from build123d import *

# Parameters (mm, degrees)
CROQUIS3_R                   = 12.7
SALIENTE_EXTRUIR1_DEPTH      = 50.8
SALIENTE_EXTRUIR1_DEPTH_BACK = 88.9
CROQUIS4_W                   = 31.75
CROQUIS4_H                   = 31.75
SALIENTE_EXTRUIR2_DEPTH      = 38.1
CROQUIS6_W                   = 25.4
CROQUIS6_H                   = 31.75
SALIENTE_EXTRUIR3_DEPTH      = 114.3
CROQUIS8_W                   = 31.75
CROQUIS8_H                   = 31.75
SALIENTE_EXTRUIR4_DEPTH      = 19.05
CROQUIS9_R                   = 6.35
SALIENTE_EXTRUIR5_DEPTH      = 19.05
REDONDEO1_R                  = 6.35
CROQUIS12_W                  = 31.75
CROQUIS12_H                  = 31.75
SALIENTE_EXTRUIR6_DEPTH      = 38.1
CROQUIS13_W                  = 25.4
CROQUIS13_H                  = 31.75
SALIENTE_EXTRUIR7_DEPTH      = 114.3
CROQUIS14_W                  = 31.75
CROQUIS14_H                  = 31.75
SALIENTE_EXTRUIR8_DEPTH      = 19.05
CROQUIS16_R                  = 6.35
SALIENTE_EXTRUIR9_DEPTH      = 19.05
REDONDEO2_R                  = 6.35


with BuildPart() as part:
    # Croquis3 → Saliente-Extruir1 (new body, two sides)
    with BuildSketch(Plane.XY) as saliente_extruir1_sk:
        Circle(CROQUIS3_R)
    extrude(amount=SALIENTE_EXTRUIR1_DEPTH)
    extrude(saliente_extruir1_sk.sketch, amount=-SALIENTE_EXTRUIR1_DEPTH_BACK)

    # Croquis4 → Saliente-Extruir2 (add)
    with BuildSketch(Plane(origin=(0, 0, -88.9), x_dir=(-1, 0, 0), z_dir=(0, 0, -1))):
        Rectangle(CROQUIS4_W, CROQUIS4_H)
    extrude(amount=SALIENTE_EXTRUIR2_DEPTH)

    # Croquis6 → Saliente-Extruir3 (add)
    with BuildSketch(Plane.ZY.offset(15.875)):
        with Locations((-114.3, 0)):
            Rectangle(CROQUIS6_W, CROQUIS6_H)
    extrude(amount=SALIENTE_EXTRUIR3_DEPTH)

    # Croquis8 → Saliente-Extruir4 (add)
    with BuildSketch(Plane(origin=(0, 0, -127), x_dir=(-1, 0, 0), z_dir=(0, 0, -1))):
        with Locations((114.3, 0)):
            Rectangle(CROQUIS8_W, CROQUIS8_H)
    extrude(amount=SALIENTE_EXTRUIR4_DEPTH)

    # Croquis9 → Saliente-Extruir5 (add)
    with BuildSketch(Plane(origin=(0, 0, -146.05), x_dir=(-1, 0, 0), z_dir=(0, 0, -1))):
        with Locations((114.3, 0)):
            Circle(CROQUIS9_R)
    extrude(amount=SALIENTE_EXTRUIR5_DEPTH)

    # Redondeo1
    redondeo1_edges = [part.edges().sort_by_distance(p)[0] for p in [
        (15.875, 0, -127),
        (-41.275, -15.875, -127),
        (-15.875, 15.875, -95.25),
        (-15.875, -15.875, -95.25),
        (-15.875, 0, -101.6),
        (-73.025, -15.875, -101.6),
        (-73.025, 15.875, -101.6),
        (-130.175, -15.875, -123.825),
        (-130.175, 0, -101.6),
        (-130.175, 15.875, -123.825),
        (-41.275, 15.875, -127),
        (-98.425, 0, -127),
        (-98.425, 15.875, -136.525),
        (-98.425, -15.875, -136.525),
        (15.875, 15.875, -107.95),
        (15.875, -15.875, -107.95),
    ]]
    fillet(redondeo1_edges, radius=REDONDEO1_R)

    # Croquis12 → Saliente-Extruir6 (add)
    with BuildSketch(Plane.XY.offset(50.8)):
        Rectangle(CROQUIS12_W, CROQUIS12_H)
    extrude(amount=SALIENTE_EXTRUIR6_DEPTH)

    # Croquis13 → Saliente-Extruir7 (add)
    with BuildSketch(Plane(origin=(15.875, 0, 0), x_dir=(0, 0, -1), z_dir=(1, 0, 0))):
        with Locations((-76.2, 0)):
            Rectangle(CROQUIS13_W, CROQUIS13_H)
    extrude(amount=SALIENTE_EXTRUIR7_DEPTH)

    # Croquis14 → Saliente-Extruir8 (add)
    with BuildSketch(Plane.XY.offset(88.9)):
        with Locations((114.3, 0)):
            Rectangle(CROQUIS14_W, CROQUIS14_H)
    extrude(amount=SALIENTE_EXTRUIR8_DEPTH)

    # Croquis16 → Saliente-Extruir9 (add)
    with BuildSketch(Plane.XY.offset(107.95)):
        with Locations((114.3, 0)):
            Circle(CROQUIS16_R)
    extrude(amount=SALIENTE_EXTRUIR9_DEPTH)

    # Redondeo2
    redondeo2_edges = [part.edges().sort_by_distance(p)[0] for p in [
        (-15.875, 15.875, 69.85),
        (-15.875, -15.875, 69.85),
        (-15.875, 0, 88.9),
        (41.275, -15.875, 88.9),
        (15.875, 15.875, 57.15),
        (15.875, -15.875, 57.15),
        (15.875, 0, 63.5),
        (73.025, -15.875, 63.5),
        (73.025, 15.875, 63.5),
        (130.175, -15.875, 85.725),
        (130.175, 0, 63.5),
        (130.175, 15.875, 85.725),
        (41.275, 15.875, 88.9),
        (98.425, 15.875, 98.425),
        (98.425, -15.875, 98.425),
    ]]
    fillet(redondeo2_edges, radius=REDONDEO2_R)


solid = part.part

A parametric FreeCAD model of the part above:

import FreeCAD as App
import Part
import Sketcher
Q = App.Units.Quantity


def edges_at(feature, points):
    """Names of the edges that pass closest to the given points."""
    edges = feature.Shape.Edges
    near = lambda p: min(range(len(edges)), key=lambda i: edges[i].distToShape(Part.Vertex(*p))[0])
    return sorted({f"Edge{near(p) + 1}" for p in points})

doc = App.newDocument("Part")
params = doc.addObject("Spreadsheet::Sheet", "Params")
for row, (alias, value) in enumerate([
    ("sketch1_diameter", "1 in"),
    ("pad1_length", "2 in"),
    ("pad1_length2", "3.5 in"),
    ("sketch2_width", "1.25 in"),
    ("pad2_length", "1.5 in"),
    ("sketch3_height", "1 in"),
    ("sketch3_width", "1.25 in"),
    ("pad3_length", "4.5 in"),
    ("sketch4_width", "1.25 in"),
    ("pad4_length", "0.75 in"),
    ("sketch5_diameter", "0.5 in"),
    ("pad5_length", "0.75 in"),
    ("fillet_radius", "0.25 in"),
    ("sketch6_width", "1.25 in"),
    ("pad6_length", "1.5 in"),
    ("sketch7_height", "1 in"),
    ("sketch7_width", "1.25 in"),
    ("pad7_length", "4.5 in"),
    ("sketch8_width", "1.25 in"),
    ("pad8_length", "0.75 in"),
    ("sketch9_diameter", "0.5 in"),
    ("pad9_length", "0.75 in"),
    ("fillet2_radius", "0.25 in"),
], start=1):
    params.set(f"A{row}", alias)
    params.set(f"B{row}", "=" + value)
    params.setAlias(f"B{row}", alias)

body = doc.addObject("PartDesign::Body", "Body")

# Sketch on XY plane
sketch1 = body.newObject("Sketcher::SketchObject", "Sketch")
sketch1.AttachmentSupport = (doc.getObject("XY_Plane"), [""])
sketch1.MapMode = "FlatFace"
sketch1.addGeometry(Part.Circle(App.Vector(0, 0, 0), App.Vector(0, 0, 1), 12.7), False)
sketch1.addConstraint(Sketcher.Constraint("Coincident", 0, 3, -1, 1))
sketch1.addConstraint(Sketcher.Constraint("Diameter", 0, Q("1 in")))
sketch1.setExpression("Constraints[1]", "Params.sketch1_diameter")
pad1 = body.newObject("PartDesign::Pad", "Pad")
pad1.Profile = sketch1
pad1.Type = "TwoLengths"
pad1.setExpression("Length", "Params.pad1_length")
pad1.setExpression("Length2", "Params.pad1_length2")

# Sketch on XY plane
sketch2 = body.newObject("Sketcher::SketchObject", "Sketch001")
sketch2.AttachmentSupport = (doc.getObject("XY_Plane"), [""])
sketch2.MapMode = "FlatFace"
sketch2.AttachmentOffset = App.Placement(App.Vector(0, 0, -3.5 * 25.4), App.Rotation())
sketch2.addGeometry(Part.LineSegment(App.Vector(15.875, 15.875, 0), App.Vector(15.875, -15.875, 0)), False)
sketch2.addGeometry(Part.LineSegment(App.Vector(15.875, -15.875, 0), App.Vector(-15.875, -15.875, 0)), False)
sketch2.addGeometry(Part.LineSegment(App.Vector(-15.875, -15.875, 0), App.Vector(-15.875, 15.875, 0)), False)
sketch2.addGeometry(Part.LineSegment(App.Vector(-15.875, 15.875, 0), App.Vector(15.875, 15.875, 0)), False)
sketch2.addConstraint(Sketcher.Constraint("Coincident", 0, 2, 1, 1))
sketch2.addConstraint(Sketcher.Constraint("Coincident", 1, 2, 2, 1))
sketch2.addConstraint(Sketcher.Constraint("Coincident", 2, 2, 3, 1))
sketch2.addConstraint(Sketcher.Constraint("Coincident", 3, 2, 0, 1))
sketch2.addConstraint(Sketcher.Constraint("Vertical", 0))
sketch2.addConstraint(Sketcher.Constraint("Horizontal", 1))
sketch2.addConstraint(Sketcher.Constraint("Vertical", 2))
sketch2.addConstraint(Sketcher.Constraint("Horizontal", 3))
sketch2.addConstraint(Sketcher.Constraint("Symmetric", 0, 2, 2, 2, -1, 1))
sketch2.addConstraint(Sketcher.Constraint("Equal", 3, 0))
sketch2.addConstraint(Sketcher.Constraint("DistanceX", 1, 2, 1, 1, Q("1.25 in")))
sketch2.setExpression("Constraints[10]", "Params.sketch2_width")
pad2 = body.newObject("PartDesign::Pad", "Pad001")
pad2.Profile = sketch2
pad2.setExpression("Length", "Params.pad2_length")
pad2.Reversed = True

# Sketch on YZ plane
sketch3 = body.newObject("Sketcher::SketchObject", "Sketch002")
sketch3.AttachmentSupport = (doc.getObject("YZ_Plane"), [""])
sketch3.MapMode = "FlatFace"
sketch3.AttachmentOffset = App.Placement(App.Vector(0, 0, -0.625 * 25.4), App.Rotation())
sketch3.addGeometry(Part.LineSegment(App.Vector(15.875, -127, 0), App.Vector(-15.875, -127, 0)), False)
sketch3.addGeometry(Part.LineSegment(App.Vector(-15.875, -127, 0), App.Vector(-15.875, -101.6, 0)), False)
sketch3.addGeometry(Part.LineSegment(App.Vector(-15.875, -101.6, 0), App.Vector(15.875, -101.6, 0)), False)
sketch3.addGeometry(Part.LineSegment(App.Vector(15.875, -101.6, 0), App.Vector(15.875, -127, 0)), False)
sketch3.addConstraint(Sketcher.Constraint("Coincident", 0, 2, 1, 1))
sketch3.addConstraint(Sketcher.Constraint("Coincident", 1, 2, 2, 1))
sketch3.addConstraint(Sketcher.Constraint("Coincident", 2, 2, 3, 1))
sketch3.addConstraint(Sketcher.Constraint("Coincident", 3, 2, 0, 1))
sketch3.addConstraint(Sketcher.Constraint("Horizontal", 0))
sketch3.addConstraint(Sketcher.Constraint("Vertical", 1))
sketch3.addConstraint(Sketcher.Constraint("Horizontal", 2))
sketch3.addConstraint(Sketcher.Constraint("Vertical", 3))
sketch3.addConstraint(Sketcher.Constraint("DistanceY", 1, 1, 1, 2, Q("1 in")))
sketch3.addConstraint(Sketcher.Constraint("DistanceY", 0, 2, -1, 1, Q("5 in")))
sketch3.addConstraint(Sketcher.Constraint("DistanceX", 0, 2, 0, 1, Q("1.25 in")))
sketch3.addConstraint(Sketcher.Constraint("DistanceX", 0, 2, -1, 1, Q("0.625 in")))
sketch3.setExpression("Constraints[8]", "Params.sketch3_height")
sketch3.setExpression("Constraints[10]", "Params.sketch3_width")
pad3 = body.newObject("PartDesign::Pad", "Pad002")
pad3.Profile = sketch3
pad3.setExpression("Length", "Params.pad3_length")
pad3.Reversed = True

# Sketch on XY plane
sketch4 = body.newObject("Sketcher::SketchObject", "Sketch003")
sketch4.AttachmentSupport = (doc.getObject("XY_Plane"), [""])
sketch4.MapMode = "FlatFace"
sketch4.AttachmentOffset = App.Placement(App.Vector(0, 0, -5 * 25.4), App.Rotation())
sketch4.addGeometry(Part.LineSegment(App.Vector(-98.425, 15.875, 0), App.Vector(-98.425, -15.875, 0)), False)
sketch4.addGeometry(Part.LineSegment(App.Vector(-98.425, -15.875, 0), App.Vector(-130.175, -15.875, 0)), False)
sketch4.addGeometry(Part.LineSegment(App.Vector(-130.175, -15.875, 0), App.Vector(-130.175, 15.875, 0)), False)
sketch4.addGeometry(Part.LineSegment(App.Vector(-130.175, 15.875, 0), App.Vector(-98.425, 15.875, 0)), False)
sketch4.addConstraint(Sketcher.Constraint("Coincident", 0, 2, 1, 1))
sketch4.addConstraint(Sketcher.Constraint("Coincident", 1, 2, 2, 1))
sketch4.addConstraint(Sketcher.Constraint("Coincident", 2, 2, 3, 1))
sketch4.addConstraint(Sketcher.Constraint("Coincident", 3, 2, 0, 1))
sketch4.addConstraint(Sketcher.Constraint("Vertical", 0))
sketch4.addConstraint(Sketcher.Constraint("Horizontal", 1))
sketch4.addConstraint(Sketcher.Constraint("Vertical", 2))
sketch4.addConstraint(Sketcher.Constraint("Horizontal", 3))
sketch4.addConstraint(Sketcher.Constraint("Equal", 3, 0))
sketch4.addConstraint(Sketcher.Constraint("DistanceX", 1, 2, 1, 1, Q("1.25 in")))
sketch4.addConstraint(Sketcher.Constraint("DistanceX", 0, 2, -1, 1, Q("3.875 in")))
sketch4.addConstraint(Sketcher.Constraint("DistanceY", 0, 2, -1, 1, Q("0.625 in")))
sketch4.setExpression("Constraints[9]", "Params.sketch4_width")
pad4 = body.newObject("PartDesign::Pad", "Pad003")
pad4.Profile = sketch4
pad4.setExpression("Length", "Params.pad4_length")
pad4.Reversed = True

# Sketch on XY plane
sketch5 = body.newObject("Sketcher::SketchObject", "Sketch004")
sketch5.AttachmentSupport = (doc.getObject("XY_Plane"), [""])
sketch5.MapMode = "FlatFace"
sketch5.AttachmentOffset = App.Placement(App.Vector(0, 0, -5.75 * 25.4), App.Rotation())
sketch5.addGeometry(Part.Circle(App.Vector(-114.3, 0, 0), App.Vector(0, 0, 1), 6.35), False)
sketch5.addConstraint(Sketcher.Constraint("PointOnObject", 0, 3, -1))
sketch5.addConstraint(Sketcher.Constraint("Diameter", 0, Q("0.5 in")))
sketch5.addConstraint(Sketcher.Constraint("DistanceX", 0, 3, -1, 1, Q("4.5 in")))
sketch5.setExpression("Constraints[1]", "Params.sketch5_diameter")
pad5 = body.newObject("PartDesign::Pad", "Pad004")
pad5.Profile = sketch5
pad5.setExpression("Length", "Params.pad5_length")
pad5.Reversed = True
doc.recompute()

fillet = body.newObject("PartDesign::Fillet", "Fillet")
fillet.Base = (pad5, edges_at(pad5, [
    (15.875, 0, -127),
    (-41.275, -15.875, -127),
    (-15.875, 15.875, -95.25),
    (-15.875, -15.875, -95.25),
    (-15.875, 0, -101.6),
    (-73.025, -15.875, -101.6),
    (-73.025, 15.875, -101.6),
    (-130.175, -15.875, -123.825),
    (-130.175, 0, -101.6),
    (-130.175, 15.875, -123.825),
    (-41.275, 15.875, -127),
    (-98.425, 0, -127),
    (-98.425, 15.875, -136.525),
    (-98.425, -15.875, -136.525),
    (15.875, 15.875, -107.95),
    (15.875, -15.875, -107.95),
]))
fillet.setExpression("Radius", "Params.fillet_radius")

# Sketch on XY plane
sketch6 = body.newObject("Sketcher::SketchObject", "Sketch005")
sketch6.AttachmentSupport = (doc.getObject("XY_Plane"), [""])
sketch6.MapMode = "FlatFace"
sketch6.AttachmentOffset = App.Placement(App.Vector(0, 0, 2 * 25.4), App.Rotation())
sketch6.addGeometry(Part.LineSegment(App.Vector(-15.875, 15.875, 0), App.Vector(-15.875, -15.875, 0)), False)
sketch6.addGeometry(Part.LineSegment(App.Vector(-15.875, -15.875, 0), App.Vector(15.875, -15.875, 0)), False)
sketch6.addGeometry(Part.LineSegment(App.Vector(15.875, -15.875, 0), App.Vector(15.875, 15.875, 0)), False)
sketch6.addGeometry(Part.LineSegment(App.Vector(15.875, 15.875, 0), App.Vector(-15.875, 15.875, 0)), False)
sketch6.addConstraint(Sketcher.Constraint("Coincident", 0, 2, 1, 1))
sketch6.addConstraint(Sketcher.Constraint("Coincident", 1, 2, 2, 1))
sketch6.addConstraint(Sketcher.Constraint("Coincident", 2, 2, 3, 1))
sketch6.addConstraint(Sketcher.Constraint("Coincident", 3, 2, 0, 1))
sketch6.addConstraint(Sketcher.Constraint("Vertical", 0))
sketch6.addConstraint(Sketcher.Constraint("Horizontal", 1))
sketch6.addConstraint(Sketcher.Constraint("Vertical", 2))
sketch6.addConstraint(Sketcher.Constraint("Horizontal", 3))
sketch6.addConstraint(Sketcher.Constraint("Symmetric", 0, 2, 2, 2, -1, 1))
sketch6.addConstraint(Sketcher.Constraint("Equal", 3, 0))
sketch6.addConstraint(Sketcher.Constraint("DistanceX", 1, 1, 1, 2, Q("1.25 in")))
sketch6.setExpression("Constraints[10]", "Params.sketch6_width")
pad6 = body.newObject("PartDesign::Pad", "Pad005")
pad6.Profile = sketch6
pad6.setExpression("Length", "Params.pad6_length")

# Sketch on YZ plane
sketch7 = body.newObject("Sketcher::SketchObject", "Sketch006")
sketch7.AttachmentSupport = (doc.getObject("YZ_Plane"), [""])
sketch7.MapMode = "FlatFace"
sketch7.AttachmentOffset = App.Placement(App.Vector(0, 0, 0.625 * 25.4), App.Rotation())
sketch7.addGeometry(Part.LineSegment(App.Vector(15.875, 88.9, 0), App.Vector(-15.875, 88.9, 0)), False)
sketch7.addGeometry(Part.LineSegment(App.Vector(-15.875, 88.9, 0), App.Vector(-15.875, 63.5, 0)), False)
sketch7.addGeometry(Part.LineSegment(App.Vector(-15.875, 63.5, 0), App.Vector(15.875, 63.5, 0)), False)
sketch7.addGeometry(Part.LineSegment(App.Vector(15.875, 63.5, 0), App.Vector(15.875, 88.9, 0)), False)
sketch7.addConstraint(Sketcher.Constraint("Coincident", 0, 2, 1, 1))
sketch7.addConstraint(Sketcher.Constraint("Coincident", 1, 2, 2, 1))
sketch7.addConstraint(Sketcher.Constraint("Coincident", 2, 2, 3, 1))
sketch7.addConstraint(Sketcher.Constraint("Coincident", 3, 2, 0, 1))
sketch7.addConstraint(Sketcher.Constraint("Horizontal", 0))
sketch7.addConstraint(Sketcher.Constraint("Vertical", 1))
sketch7.addConstraint(Sketcher.Constraint("Horizontal", 2))
sketch7.addConstraint(Sketcher.Constraint("Vertical", 3))
sketch7.addConstraint(Sketcher.Constraint("DistanceY", 1, 2, 1, 1, Q("1 in")))
sketch7.addConstraint(Sketcher.Constraint("DistanceX", 0, 2, 0, 1, Q("1.25 in")))
sketch7.addConstraint(Sketcher.Constraint("DistanceY", -1, 1, 0, 2, Q("3.5 in")))
sketch7.addConstraint(Sketcher.Constraint("DistanceX", 0, 2, -1, 1, Q("0.625 in")))
sketch7.setExpression("Constraints[8]", "Params.sketch7_height")
sketch7.setExpression("Constraints[9]", "Params.sketch7_width")
pad7 = body.newObject("PartDesign::Pad", "Pad006")
pad7.Profile = sketch7
pad7.setExpression("Length", "Params.pad7_length")

# Sketch on XY plane
sketch8 = body.newObject("Sketcher::SketchObject", "Sketch007")
sketch8.AttachmentSupport = (doc.getObject("XY_Plane"), [""])
sketch8.MapMode = "FlatFace"
sketch8.AttachmentOffset = App.Placement(App.Vector(0, 0, 3.5 * 25.4), App.Rotation())
sketch8.addGeometry(Part.LineSegment(App.Vector(98.425, 15.875, 0), App.Vector(98.425, -15.875, 0)), False)
sketch8.addGeometry(Part.LineSegment(App.Vector(98.425, -15.875, 0), App.Vector(130.175, -15.875, 0)), False)
sketch8.addGeometry(Part.LineSegment(App.Vector(130.175, -15.875, 0), App.Vector(130.175, 15.875, 0)), False)
sketch8.addGeometry(Part.LineSegment(App.Vector(130.175, 15.875, 0), App.Vector(98.425, 15.875, 0)), False)
sketch8.addConstraint(Sketcher.Constraint("Coincident", 0, 2, 1, 1))
sketch8.addConstraint(Sketcher.Constraint("Coincident", 1, 2, 2, 1))
sketch8.addConstraint(Sketcher.Constraint("Coincident", 2, 2, 3, 1))
sketch8.addConstraint(Sketcher.Constraint("Coincident", 3, 2, 0, 1))
sketch8.addConstraint(Sketcher.Constraint("Vertical", 0))
sketch8.addConstraint(Sketcher.Constraint("Horizontal", 1))
sketch8.addConstraint(Sketcher.Constraint("Vertical", 2))
sketch8.addConstraint(Sketcher.Constraint("Horizontal", 3))
sketch8.addConstraint(Sketcher.Constraint("Equal", 3, 0))
sketch8.addConstraint(Sketcher.Constraint("DistanceX", 1, 1, 1, 2, Q("1.25 in")))
sketch8.addConstraint(Sketcher.Constraint("DistanceX", -1, 1, 0, 2, Q("3.875 in")))
sketch8.addConstraint(Sketcher.Constraint("DistanceY", 0, 2, -1, 1, Q("0.625 in")))
sketch8.setExpression("Constraints[9]", "Params.sketch8_width")
pad8 = body.newObject("PartDesign::Pad", "Pad007")
pad8.Profile = sketch8
pad8.setExpression("Length", "Params.pad8_length")

# Sketch on XY plane
sketch9 = body.newObject("Sketcher::SketchObject", "Sketch008")
sketch9.AttachmentSupport = (doc.getObject("XY_Plane"), [""])
sketch9.MapMode = "FlatFace"
sketch9.AttachmentOffset = App.Placement(App.Vector(0, 0, 4.25 * 25.4), App.Rotation())
sketch9.addGeometry(Part.Circle(App.Vector(114.3, 0, 0), App.Vector(0, 0, 1), 6.35), False)
sketch9.addConstraint(Sketcher.Constraint("PointOnObject", 0, 3, -1))
sketch9.addConstraint(Sketcher.Constraint("Diameter", 0, Q("0.5 in")))
sketch9.addConstraint(Sketcher.Constraint("DistanceX", -1, 1, 0, 3, Q("4.5 in")))
sketch9.setExpression("Constraints[1]", "Params.sketch9_diameter")
pad9 = body.newObject("PartDesign::Pad", "Pad008")
pad9.Profile = sketch9
pad9.setExpression("Length", "Params.pad9_length")
doc.recompute()

fillet2 = body.newObject("PartDesign::Fillet", "Fillet001")
fillet2.Base = (pad9, edges_at(pad9, [
    (-15.875, 15.875, 69.85),
    (-15.875, -15.875, 69.85),
    (-15.875, 0, 88.9),
    (41.275, -15.875, 88.9),
    (15.875, 15.875, 57.15),
    (15.875, -15.875, 57.15),
    (15.875, 0, 63.5),
    (73.025, -15.875, 63.5),
    (73.025, 15.875, 63.5),
    (130.175, -15.875, 85.725),
    (130.175, 0, 63.5),
    (130.175, 15.875, 85.725),
    (41.275, 15.875, 88.9),
    (98.425, 15.875, 98.425),
    (98.425, -15.875, 98.425),
]))
fillet2.setExpression("Radius", "Params.fillet2_radius")

doc.recompute()
